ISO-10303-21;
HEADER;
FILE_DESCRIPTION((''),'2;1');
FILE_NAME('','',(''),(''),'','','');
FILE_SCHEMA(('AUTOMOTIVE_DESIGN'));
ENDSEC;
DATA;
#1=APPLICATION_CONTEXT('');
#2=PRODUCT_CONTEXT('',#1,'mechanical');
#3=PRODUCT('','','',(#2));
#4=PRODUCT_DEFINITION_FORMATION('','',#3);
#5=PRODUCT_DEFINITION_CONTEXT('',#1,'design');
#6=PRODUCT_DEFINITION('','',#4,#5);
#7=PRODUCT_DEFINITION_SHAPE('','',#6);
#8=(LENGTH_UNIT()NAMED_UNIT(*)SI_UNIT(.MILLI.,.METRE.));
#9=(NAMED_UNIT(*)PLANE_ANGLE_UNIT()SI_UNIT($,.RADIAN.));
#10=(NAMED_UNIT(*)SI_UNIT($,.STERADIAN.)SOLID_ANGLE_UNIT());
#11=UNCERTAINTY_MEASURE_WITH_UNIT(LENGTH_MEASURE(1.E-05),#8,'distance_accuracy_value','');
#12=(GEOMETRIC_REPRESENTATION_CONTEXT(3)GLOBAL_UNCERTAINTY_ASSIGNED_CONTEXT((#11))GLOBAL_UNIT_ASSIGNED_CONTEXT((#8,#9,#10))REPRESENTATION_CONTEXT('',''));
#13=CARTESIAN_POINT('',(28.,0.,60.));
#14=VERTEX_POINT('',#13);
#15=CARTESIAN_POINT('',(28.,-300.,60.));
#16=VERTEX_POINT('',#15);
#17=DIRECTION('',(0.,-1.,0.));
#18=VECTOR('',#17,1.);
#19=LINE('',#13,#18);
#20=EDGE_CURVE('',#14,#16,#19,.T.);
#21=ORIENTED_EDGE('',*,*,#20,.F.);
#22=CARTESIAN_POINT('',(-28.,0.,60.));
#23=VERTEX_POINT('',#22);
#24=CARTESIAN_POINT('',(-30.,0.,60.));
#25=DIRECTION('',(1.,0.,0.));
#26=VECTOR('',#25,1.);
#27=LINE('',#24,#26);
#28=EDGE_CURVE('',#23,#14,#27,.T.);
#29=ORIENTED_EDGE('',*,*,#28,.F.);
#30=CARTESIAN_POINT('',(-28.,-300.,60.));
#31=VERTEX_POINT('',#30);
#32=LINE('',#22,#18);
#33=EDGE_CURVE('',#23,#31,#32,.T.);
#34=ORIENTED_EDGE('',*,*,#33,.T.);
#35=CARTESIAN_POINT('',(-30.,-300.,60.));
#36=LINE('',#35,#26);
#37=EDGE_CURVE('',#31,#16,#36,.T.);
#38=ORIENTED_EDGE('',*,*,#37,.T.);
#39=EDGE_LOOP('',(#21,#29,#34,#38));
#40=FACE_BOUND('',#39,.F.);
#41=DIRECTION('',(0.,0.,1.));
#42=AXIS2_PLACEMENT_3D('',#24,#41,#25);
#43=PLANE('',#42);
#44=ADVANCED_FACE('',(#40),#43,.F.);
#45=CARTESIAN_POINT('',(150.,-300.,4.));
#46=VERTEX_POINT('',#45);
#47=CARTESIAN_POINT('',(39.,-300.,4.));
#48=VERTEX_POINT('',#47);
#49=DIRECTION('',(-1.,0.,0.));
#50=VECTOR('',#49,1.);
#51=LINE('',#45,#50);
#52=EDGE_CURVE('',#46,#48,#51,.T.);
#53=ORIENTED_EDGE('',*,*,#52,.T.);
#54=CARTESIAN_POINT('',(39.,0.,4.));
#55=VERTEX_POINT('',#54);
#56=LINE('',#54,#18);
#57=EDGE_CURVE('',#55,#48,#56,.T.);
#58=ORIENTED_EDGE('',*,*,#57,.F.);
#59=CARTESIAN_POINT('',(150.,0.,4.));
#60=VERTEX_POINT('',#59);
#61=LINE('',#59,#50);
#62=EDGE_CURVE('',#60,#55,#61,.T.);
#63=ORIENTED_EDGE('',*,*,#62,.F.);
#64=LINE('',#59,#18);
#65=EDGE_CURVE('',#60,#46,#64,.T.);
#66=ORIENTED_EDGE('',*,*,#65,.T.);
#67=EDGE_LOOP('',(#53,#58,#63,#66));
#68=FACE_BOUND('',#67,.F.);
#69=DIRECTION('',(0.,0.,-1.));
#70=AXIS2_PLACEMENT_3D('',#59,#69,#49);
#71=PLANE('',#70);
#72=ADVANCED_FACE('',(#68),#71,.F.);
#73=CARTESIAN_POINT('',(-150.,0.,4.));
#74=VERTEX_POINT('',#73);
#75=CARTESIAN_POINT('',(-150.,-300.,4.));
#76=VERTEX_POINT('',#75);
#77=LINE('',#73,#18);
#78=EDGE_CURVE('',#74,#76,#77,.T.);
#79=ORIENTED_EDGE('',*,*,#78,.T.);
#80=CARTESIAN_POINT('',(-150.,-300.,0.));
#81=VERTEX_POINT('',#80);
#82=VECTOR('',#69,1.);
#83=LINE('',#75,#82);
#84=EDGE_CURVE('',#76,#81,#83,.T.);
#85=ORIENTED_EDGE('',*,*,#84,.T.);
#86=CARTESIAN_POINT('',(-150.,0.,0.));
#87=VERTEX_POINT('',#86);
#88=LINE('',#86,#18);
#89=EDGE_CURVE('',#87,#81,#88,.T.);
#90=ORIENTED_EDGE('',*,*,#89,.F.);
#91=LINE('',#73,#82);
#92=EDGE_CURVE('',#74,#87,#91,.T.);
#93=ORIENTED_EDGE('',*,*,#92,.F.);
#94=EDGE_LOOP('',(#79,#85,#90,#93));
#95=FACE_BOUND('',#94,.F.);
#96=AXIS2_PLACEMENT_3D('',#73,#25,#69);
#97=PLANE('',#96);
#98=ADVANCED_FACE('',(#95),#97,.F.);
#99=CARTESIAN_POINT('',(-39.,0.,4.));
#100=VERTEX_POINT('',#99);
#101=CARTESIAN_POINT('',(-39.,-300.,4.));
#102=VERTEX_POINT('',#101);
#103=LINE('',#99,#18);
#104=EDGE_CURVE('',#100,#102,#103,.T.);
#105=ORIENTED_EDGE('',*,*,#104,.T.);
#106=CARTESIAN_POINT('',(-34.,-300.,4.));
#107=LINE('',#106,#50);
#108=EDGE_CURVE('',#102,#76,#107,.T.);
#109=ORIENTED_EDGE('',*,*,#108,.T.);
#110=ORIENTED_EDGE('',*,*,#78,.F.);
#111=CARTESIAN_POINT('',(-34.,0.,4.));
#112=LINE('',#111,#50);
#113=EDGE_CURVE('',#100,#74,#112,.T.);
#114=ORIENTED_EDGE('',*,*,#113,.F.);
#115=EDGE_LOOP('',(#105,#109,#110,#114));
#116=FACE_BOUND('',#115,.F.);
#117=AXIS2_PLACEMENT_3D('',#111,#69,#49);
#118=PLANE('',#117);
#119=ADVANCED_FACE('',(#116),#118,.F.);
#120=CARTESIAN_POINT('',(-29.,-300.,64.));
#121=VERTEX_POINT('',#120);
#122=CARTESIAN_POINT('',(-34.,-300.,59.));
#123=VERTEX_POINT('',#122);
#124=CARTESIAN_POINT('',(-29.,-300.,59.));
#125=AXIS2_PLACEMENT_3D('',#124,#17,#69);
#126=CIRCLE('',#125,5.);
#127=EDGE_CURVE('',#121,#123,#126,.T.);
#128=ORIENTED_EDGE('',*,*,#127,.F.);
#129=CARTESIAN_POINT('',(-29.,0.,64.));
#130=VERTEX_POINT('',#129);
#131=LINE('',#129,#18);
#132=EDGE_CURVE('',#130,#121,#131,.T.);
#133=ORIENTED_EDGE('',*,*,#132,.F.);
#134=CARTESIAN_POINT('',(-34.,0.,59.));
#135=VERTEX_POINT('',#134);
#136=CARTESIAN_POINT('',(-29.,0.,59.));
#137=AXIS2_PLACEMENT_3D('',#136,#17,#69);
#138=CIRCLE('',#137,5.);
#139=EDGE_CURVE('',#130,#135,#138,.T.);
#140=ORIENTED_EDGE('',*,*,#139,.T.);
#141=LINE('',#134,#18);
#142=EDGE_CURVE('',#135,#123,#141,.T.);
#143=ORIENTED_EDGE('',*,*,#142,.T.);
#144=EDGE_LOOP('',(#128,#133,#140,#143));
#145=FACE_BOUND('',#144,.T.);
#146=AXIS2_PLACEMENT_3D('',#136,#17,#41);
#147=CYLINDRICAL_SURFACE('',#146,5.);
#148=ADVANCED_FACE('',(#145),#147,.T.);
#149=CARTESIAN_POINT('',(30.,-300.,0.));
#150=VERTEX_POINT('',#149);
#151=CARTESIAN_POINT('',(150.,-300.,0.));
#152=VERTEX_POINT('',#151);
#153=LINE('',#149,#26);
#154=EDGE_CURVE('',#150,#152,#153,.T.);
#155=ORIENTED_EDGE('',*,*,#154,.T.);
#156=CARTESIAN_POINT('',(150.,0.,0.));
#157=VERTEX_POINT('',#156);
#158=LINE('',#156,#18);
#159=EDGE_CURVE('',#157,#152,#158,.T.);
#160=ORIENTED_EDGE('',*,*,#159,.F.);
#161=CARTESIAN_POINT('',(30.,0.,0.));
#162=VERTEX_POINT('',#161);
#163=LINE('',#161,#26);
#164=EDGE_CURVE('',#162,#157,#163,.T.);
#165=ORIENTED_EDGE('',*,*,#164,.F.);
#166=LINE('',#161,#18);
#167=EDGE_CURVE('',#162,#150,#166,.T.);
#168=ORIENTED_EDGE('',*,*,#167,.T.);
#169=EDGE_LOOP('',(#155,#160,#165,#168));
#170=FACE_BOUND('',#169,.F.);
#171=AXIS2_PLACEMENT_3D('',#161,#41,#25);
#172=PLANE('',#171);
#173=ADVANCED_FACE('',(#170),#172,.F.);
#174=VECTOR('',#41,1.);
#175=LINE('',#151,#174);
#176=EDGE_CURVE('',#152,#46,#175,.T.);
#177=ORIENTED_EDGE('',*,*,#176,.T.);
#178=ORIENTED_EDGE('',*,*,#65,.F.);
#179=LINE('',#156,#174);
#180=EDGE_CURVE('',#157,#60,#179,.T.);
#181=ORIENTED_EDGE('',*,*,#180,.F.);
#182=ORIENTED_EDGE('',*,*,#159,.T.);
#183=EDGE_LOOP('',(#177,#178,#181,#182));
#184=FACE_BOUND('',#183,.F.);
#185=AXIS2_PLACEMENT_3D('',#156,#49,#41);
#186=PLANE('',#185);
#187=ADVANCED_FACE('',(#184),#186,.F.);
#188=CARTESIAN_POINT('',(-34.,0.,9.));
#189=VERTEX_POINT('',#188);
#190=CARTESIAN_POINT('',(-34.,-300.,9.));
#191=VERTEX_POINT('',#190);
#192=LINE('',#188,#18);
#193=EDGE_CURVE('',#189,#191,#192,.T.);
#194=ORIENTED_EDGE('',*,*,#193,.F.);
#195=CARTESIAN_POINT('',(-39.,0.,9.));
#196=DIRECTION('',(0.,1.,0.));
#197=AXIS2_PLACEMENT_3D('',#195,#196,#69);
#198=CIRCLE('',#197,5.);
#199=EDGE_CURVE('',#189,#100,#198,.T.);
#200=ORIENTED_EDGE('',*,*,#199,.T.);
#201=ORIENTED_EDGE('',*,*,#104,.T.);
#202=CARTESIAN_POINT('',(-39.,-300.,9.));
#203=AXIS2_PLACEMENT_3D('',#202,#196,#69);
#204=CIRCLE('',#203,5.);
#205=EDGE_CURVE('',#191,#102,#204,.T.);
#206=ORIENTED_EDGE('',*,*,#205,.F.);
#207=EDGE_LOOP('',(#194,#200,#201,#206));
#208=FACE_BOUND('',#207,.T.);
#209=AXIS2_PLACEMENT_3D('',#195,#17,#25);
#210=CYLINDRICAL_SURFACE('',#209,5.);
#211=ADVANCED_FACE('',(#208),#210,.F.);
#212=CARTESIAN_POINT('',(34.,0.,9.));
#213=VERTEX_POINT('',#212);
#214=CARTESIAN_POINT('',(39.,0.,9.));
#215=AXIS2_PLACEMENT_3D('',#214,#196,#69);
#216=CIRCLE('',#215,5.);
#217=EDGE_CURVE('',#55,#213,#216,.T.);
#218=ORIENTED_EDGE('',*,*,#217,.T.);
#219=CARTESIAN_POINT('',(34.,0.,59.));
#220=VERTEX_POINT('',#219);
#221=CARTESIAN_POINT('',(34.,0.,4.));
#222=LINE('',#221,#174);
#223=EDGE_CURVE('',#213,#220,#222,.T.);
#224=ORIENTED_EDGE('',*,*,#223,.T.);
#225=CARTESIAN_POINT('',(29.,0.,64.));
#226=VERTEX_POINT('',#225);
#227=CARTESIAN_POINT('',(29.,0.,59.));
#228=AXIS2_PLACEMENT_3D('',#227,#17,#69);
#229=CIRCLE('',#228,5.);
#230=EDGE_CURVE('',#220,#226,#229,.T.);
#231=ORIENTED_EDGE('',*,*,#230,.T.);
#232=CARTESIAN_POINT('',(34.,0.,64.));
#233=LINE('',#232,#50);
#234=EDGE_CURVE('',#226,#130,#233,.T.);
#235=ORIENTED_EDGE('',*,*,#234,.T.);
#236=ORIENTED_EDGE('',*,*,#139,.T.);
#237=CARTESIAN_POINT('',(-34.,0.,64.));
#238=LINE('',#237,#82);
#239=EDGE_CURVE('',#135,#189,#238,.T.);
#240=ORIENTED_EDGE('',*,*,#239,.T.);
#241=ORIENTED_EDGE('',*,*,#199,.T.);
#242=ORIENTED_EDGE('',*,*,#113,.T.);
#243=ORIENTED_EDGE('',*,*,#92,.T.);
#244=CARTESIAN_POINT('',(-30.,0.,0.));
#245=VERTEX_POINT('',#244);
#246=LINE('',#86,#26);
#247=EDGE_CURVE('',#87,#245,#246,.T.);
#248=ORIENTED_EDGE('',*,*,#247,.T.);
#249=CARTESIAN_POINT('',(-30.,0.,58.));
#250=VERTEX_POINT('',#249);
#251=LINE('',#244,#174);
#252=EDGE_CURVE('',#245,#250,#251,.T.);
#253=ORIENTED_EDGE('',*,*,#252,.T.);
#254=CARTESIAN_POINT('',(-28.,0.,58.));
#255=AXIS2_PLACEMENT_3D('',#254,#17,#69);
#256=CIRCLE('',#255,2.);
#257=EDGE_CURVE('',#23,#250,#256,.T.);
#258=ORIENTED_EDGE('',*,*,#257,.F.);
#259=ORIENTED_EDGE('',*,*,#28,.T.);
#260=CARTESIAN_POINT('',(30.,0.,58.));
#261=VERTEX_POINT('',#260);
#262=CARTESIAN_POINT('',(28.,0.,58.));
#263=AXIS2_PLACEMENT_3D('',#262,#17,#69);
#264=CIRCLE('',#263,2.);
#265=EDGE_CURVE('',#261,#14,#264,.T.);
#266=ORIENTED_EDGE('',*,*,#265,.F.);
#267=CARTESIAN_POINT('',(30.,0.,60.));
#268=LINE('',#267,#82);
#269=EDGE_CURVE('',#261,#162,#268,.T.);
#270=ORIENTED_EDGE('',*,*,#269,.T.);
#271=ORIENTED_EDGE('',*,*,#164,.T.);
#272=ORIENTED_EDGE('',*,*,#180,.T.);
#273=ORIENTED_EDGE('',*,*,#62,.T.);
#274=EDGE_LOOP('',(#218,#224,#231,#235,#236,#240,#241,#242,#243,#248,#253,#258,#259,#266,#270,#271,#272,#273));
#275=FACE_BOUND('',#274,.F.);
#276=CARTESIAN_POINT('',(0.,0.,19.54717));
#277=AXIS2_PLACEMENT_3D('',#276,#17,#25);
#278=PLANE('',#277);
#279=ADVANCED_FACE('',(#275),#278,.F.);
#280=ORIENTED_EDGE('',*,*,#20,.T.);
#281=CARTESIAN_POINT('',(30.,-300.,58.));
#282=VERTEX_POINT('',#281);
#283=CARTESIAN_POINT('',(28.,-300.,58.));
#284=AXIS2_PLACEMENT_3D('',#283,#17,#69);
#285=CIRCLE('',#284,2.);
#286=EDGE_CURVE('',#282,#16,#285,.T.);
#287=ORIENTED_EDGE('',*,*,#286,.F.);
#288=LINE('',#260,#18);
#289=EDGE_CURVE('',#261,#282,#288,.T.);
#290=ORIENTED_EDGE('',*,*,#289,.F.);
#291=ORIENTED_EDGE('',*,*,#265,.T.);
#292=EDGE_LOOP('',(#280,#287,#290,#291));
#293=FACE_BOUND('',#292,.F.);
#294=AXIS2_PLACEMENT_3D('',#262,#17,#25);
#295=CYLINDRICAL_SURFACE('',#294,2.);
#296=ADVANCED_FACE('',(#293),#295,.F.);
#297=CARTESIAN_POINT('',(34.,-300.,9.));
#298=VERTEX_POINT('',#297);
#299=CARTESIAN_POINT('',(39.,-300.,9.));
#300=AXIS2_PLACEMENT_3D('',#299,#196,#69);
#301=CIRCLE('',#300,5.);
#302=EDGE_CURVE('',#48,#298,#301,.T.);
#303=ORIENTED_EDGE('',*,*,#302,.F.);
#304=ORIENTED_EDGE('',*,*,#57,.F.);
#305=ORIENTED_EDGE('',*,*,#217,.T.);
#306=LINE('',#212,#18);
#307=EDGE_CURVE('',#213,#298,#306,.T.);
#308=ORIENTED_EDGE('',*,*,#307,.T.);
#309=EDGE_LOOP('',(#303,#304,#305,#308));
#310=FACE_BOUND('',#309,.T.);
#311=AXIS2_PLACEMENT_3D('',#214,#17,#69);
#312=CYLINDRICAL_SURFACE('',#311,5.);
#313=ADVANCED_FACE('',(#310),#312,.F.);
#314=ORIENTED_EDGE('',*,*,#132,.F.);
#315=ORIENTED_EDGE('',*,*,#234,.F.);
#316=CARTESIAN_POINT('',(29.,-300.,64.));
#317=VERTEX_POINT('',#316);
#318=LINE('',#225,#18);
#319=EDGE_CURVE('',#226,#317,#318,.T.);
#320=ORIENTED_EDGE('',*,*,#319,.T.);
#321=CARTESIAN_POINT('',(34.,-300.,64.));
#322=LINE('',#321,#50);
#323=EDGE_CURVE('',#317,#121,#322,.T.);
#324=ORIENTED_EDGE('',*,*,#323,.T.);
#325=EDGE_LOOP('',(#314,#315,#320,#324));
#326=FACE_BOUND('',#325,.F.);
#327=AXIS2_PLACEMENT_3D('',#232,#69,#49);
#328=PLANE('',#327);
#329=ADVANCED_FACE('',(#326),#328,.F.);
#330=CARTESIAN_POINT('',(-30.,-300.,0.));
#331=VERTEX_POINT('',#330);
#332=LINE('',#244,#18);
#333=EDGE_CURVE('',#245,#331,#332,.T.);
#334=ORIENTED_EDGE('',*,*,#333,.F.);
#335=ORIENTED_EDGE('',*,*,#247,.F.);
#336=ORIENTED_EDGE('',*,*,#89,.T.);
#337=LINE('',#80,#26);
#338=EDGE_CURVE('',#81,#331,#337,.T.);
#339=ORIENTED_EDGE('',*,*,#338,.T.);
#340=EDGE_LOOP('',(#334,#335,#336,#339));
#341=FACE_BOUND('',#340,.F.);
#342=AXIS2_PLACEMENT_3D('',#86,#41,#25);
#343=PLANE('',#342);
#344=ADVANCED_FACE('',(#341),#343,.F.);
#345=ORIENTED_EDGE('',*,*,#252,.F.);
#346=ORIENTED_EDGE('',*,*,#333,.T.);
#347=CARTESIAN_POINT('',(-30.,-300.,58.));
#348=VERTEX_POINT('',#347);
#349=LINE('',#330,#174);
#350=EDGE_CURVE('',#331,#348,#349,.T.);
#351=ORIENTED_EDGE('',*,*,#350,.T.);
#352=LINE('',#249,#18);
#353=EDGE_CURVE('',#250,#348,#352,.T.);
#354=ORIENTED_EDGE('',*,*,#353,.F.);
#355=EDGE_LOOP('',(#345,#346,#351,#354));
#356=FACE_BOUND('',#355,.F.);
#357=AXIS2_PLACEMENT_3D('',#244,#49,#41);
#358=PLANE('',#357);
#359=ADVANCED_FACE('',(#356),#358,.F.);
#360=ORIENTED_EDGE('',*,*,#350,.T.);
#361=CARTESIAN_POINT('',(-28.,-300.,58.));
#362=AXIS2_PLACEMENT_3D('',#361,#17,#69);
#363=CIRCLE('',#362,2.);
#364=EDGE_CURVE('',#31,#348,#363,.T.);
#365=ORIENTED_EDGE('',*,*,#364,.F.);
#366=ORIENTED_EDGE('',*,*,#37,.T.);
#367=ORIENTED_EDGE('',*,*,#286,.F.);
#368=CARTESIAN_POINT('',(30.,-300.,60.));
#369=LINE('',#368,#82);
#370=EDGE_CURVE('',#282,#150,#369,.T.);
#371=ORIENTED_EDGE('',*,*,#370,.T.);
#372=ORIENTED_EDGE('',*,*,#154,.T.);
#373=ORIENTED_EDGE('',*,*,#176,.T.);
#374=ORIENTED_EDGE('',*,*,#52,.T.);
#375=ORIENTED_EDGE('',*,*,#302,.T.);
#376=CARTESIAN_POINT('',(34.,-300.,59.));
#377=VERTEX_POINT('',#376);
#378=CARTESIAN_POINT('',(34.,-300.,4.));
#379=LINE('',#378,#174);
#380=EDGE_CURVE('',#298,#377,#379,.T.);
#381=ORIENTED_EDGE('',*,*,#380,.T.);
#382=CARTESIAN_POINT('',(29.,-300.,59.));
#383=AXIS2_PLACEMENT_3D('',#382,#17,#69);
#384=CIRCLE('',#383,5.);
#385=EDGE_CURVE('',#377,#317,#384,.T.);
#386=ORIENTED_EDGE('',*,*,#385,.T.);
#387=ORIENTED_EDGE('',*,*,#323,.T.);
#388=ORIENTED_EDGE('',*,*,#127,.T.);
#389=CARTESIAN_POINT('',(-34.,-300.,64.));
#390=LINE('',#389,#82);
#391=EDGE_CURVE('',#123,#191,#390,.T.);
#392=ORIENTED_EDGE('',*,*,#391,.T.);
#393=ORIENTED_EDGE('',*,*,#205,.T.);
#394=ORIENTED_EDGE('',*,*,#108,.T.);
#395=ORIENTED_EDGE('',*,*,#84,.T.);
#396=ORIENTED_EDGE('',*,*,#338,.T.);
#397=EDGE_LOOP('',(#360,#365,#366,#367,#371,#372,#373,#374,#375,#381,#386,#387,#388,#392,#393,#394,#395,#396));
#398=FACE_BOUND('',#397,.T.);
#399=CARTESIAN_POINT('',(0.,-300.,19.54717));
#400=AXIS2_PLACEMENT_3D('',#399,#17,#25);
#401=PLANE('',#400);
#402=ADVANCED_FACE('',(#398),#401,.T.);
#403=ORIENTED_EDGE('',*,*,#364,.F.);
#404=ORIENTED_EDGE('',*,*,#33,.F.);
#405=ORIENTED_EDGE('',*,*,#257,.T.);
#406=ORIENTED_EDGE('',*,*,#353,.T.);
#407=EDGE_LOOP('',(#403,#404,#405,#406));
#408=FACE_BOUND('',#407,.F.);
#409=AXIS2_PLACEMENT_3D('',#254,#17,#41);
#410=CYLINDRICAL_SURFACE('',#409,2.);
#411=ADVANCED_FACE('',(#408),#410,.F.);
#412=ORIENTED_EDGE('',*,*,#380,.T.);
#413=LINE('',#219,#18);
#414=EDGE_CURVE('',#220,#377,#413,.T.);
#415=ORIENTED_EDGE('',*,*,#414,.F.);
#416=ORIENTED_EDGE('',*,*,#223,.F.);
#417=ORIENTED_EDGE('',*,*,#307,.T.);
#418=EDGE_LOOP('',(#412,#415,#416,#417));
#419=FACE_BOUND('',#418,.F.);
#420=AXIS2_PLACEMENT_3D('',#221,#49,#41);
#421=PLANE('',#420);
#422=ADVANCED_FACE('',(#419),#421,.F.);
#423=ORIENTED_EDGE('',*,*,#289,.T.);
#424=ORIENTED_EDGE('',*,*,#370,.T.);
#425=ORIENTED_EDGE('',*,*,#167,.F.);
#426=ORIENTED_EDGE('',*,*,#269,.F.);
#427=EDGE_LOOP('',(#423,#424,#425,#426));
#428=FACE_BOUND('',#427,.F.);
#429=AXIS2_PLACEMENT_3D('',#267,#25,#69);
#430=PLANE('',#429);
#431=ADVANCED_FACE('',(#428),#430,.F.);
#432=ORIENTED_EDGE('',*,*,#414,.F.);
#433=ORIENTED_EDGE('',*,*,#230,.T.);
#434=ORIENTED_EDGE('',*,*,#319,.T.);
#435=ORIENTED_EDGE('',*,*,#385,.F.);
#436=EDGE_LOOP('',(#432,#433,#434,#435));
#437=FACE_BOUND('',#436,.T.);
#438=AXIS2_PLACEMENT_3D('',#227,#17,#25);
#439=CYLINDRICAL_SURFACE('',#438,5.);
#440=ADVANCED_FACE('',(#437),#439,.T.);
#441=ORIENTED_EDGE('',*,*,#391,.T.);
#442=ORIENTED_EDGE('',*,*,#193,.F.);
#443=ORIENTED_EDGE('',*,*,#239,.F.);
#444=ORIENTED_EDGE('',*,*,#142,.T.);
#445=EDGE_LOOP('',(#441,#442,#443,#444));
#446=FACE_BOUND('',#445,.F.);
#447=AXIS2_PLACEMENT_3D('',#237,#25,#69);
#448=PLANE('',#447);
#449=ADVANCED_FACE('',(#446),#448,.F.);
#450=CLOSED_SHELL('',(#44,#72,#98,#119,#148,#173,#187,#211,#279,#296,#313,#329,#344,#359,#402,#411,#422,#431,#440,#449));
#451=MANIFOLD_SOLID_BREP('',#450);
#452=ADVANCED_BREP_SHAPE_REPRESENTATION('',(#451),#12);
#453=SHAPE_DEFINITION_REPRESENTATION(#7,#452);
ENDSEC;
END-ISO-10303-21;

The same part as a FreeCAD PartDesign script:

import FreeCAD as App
import Part
import Sketcher

V = App.Vector


def edges_at(feature, points):
    """Names of the edges that pass closest to the given points."""
    edges = feature.Shape.Edges
    near = lambda p: min(range(len(edges)), key=lambda i: edges[i].distToShape(Part.Vertex(*p))[0])
    return sorted({f"Edge{near(p) + 1}" for p in points})

doc = App.newDocument("Part")
body = doc.addObject("PartDesign::Body", "Body")

sketch1 = body.newObject("Sketcher::SketchObject", "Sketch")
sketch1.AttachmentSupport = (doc.getObject("XZ_Plane"), [""])
sketch1.MapMode = "FlatFace"
sketch1.addGeometry([
    Part.LineSegment(V(-150, 4, 0), V(-150, 0, 0)),
    Part.LineSegment(V(-150, 0, 0), V(-30, 0, 0)),
    Part.LineSegment(V(-30, 0, 0), V(-30, 60, 0)),
    Part.LineSegment(V(-30, 60, 0), V(30, 60, 0)),
    Part.LineSegment(V(30, 60, 0), V(30, 0, 0)),
    Part.LineSegment(V(30, 0, 0), V(150, 0, 0)),
    Part.LineSegment(V(150, 0, 0), V(150, 4, 0)),
    Part.LineSegment(V(150, 4, 0), V(34, 4, 0)),
    Part.LineSegment(V(34, 4, 0), V(34, 64, 0)),
    Part.LineSegment(V(34, 64, 0), V(-34, 64, 0)),
    Part.LineSegment(V(-34, 64, 0), V(-34, 4, 0)),
    Part.LineSegment(V(-34, 4, 0), V(-150, 4, 0)),
], False)
sketch1.addConstraint([
    Sketcher.Constraint("Coincident", 0, 2, 1, 1),
    Sketcher.Constraint("Coincident", 1, 2, 2, 1),
    Sketcher.Constraint("Coincident", 2, 2, 3, 1),
    Sketcher.Constraint("Coincident", 3, 2, 4, 1),
    Sketcher.Constraint("Coincident", 4, 2, 5, 1),
    Sketcher.Constraint("Coincident", 5, 2, 6, 1),
    Sketcher.Constraint("Coincident", 6, 2, 7, 1),
    Sketcher.Constraint("Coincident", 7, 2, 8, 1),
    Sketcher.Constraint("Coincident", 8, 2, 9, 1),
    Sketcher.Constraint("Coincident", 9, 2, 10, 1),
    Sketcher.Constraint("Coincident", 10, 2, 11, 1),
    Sketcher.Constraint("Coincident", 11, 2, 0, 1),
    Sketcher.Constraint("Vertical", 0),
    Sketcher.Constraint("Horizontal", 1),
    Sketcher.Constraint("Vertical", 2),
    Sketcher.Constraint("Horizontal", 3),
    Sketcher.Constraint("Vertical", 4),
    Sketcher.Constraint("Horizontal", 5),
    Sketcher.Constraint("Vertical", 6),
    Sketcher.Constraint("Horizontal", 7),
    Sketcher.Constraint("Vertical", 8),
    Sketcher.Constraint("Horizontal", 9),
    Sketcher.Constraint("Vertical", 10),
    Sketcher.Constraint("Horizontal", 11),
    Sketcher.Constraint("Symmetric", 1, 2, 4, 2, -1, 1),
    Sketcher.Constraint("Symmetric", 0, 2, 5, 2, -2),
    Sketcher.Constraint("Symmetric", 7, 2, 10, 2, -2),
    Sketcher.Constraint("Equal", 3, 2),
    Sketcher.Constraint("Equal", 4, 8),
    Sketcher.Constraint("DistanceX", 1, 1, 1, 2, 120.0),
    Sketcher.Constraint("DistanceX", 3, 1, 3, 2, 60.0),
    Sketcher.Constraint("DistanceX", 7, 2, 7, 1, 116.0),
    Sketcher.Constraint("DistanceY", 0, 2, 0, 1, 4.0),
])
pad1 = body.newObject("PartDesign::Pad", "Pad")
pad1.Profile = sketch1
pad1.Length = 300
doc.recompute()

fillet = body.newObject("PartDesign::Fillet", "Fillet")
fillet.Base = (pad1, edges_at(pad1, [
    (-34, -150, 4),
    (34, -150, 4),
    (34, -150, 64),
    (-34, -150, 64),
]))
fillet.Radius = 5
doc.recompute()

fillet2 = body.newObject("PartDesign::Fillet", "Fillet001")
fillet2.Base = (fillet, edges_at(fillet, [(30, -150, 60), (-30, -150, 60)]))
fillet2.Radius = 2

doc.recompute()
